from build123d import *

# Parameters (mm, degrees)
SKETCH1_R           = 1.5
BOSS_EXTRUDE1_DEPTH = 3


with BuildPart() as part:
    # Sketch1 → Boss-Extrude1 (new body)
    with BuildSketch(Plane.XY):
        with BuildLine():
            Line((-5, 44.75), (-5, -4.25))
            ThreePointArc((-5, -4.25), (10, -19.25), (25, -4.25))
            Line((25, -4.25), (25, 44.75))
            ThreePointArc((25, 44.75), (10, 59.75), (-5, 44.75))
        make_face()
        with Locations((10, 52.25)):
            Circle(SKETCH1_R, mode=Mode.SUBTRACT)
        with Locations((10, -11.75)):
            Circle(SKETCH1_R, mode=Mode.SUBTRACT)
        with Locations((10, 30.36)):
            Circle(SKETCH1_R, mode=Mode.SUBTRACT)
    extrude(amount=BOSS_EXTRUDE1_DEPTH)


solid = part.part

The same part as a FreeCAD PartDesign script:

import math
import FreeCAD as App
import Part
import Sketcher

V = App.Vector

doc = App.newDocument("Part")
body = doc.addObject("PartDesign::Body", "Body")

# Sketch on XY plane
sketch1 = body.newObject("Sketcher::SketchObject", "Sketch")
sketch1.AttachmentSupport = (doc.getObject("XY_Plane"), [""])
sketch1.MapMode = "FlatFace"
sketch1.addGeometry([
    Part.LineSegment(V(-5, 44.75, 0), V(-5, -4.25, 0)),  # 0
    Part.ArcOfCircle(Part.Circle(V(10, -4.25, 0), V(0, 0, 1), 15), math.radians(180), math.radians(360)),  # 1
    Part.LineSegment(V(25, -4.25, 0), V(25, 44.75, 0)),  # 2
    Part.ArcOfCircle(Part.Circle(V(10, 44.75, 0), V(0, 0, 1), 15), math.radians(0), math.radians(180)),  # 3
    Part.Circle(V(10, -11.75, 0), V(0, 0, 1), 1.5),  # 4
    Part.Circle(V(10, 30.36, 0), V(0, 0, 1), 1.5),  # 5
    Part.Circle(V(10, 52.25, 0), V(0, 0, 1), 1.5),  # 6
], False)
sketch1.addConstraint([
    Sketcher.Constraint("Tangent", 0, 2, 1, 1),
    Sketcher.Constraint("Tangent", 1, 2, 2, 1),
    Sketcher.Constraint("Tangent", 2, 2, 3, 1),
    Sketcher.Constraint("Tangent", 3, 2, 0, 1),
    Sketcher.Constraint("Vertical", 0),
    Sketcher.Constraint("Vertical", 2),
    Sketcher.Constraint("Equal", 4, 5),
    Sketcher.Constraint("Equal", 5, 6),
    Sketcher.Constraint("Vertical", 3, 3, 4, 3),
    Sketcher.Constraint("Vertical", 4, 3, 5, 3),
    Sketcher.Constraint("Vertical", 5, 3, 6, 3),
    Sketcher.Constraint("Diameter", 4, 3.0),
    Sketcher.Constraint("Radius", 1, 15.0),
    Sketcher.Constraint("DistanceY", 0, 2, 0, 1, 49.0),
    Sketcher.Constraint("DistanceX", -1, 1, 1, 3, 10.0),
    Sketcher.Constraint("DistanceY", 4, 3, 6, 3, 64.0),
    Sketcher.Constraint("DistanceY", 4, 3, 1, 3, 7.5),
    Sketcher.Constraint("DistanceY", 1, 3, -1, 1, 4.25),
    Sketcher.Constraint("DistanceY", -1, 1, 5, 3, 30.36),
])
pad1 = body.newObject("PartDesign::Pad", "Pad")
pad1.Profile = sketch1
pad1.Length = 3

doc.recompute()
